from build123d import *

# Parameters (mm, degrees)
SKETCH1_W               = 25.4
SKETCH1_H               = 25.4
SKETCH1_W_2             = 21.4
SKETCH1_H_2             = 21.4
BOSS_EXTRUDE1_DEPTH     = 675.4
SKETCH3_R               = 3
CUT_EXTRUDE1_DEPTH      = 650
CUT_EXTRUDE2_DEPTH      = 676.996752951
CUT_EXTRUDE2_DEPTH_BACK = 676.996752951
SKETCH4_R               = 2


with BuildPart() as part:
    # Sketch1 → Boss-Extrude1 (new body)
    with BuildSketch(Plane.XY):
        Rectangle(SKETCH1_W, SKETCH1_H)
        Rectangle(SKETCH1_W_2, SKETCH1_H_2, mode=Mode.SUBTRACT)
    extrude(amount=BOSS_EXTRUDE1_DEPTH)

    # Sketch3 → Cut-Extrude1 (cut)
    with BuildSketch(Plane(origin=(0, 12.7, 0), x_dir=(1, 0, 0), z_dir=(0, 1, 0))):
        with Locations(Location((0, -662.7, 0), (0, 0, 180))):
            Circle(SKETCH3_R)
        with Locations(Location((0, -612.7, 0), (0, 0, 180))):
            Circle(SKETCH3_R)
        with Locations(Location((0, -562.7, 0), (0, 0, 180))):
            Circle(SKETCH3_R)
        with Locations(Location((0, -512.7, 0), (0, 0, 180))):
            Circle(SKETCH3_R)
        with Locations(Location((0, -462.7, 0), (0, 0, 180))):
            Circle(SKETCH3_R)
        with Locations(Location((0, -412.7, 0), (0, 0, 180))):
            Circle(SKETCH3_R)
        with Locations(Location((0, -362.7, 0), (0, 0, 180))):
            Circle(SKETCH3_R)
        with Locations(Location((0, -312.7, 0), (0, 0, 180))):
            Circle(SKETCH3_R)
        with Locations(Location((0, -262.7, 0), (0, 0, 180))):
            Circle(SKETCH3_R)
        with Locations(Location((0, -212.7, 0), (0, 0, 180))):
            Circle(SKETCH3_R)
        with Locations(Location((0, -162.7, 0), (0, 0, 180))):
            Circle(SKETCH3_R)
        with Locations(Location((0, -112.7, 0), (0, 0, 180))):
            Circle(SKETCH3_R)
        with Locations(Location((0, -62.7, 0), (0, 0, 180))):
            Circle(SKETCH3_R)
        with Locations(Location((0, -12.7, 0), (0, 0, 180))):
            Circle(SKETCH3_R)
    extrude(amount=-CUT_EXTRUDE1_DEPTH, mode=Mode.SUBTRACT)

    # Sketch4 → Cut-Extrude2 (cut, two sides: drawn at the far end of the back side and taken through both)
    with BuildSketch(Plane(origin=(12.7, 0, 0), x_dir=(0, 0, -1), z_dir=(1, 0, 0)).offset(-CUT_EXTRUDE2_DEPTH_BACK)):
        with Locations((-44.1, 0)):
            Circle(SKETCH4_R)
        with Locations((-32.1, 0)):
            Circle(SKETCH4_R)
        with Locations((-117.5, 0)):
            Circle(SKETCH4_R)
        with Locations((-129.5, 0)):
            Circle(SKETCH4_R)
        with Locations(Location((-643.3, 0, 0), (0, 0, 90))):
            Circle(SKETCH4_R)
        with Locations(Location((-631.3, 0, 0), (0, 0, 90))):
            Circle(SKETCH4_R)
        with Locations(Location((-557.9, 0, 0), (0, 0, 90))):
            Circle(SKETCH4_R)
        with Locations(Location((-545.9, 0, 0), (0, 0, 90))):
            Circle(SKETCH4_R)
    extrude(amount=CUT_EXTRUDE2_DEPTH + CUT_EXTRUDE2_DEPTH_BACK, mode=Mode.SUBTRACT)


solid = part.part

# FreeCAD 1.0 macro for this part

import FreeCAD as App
import Part
import Sketcher
from FreeCAD import Vector


def add_polygon(sketch, points):
    """Adds a closed chain of lines whose ends are joined by coincident constraints."""
    first, n = sketch.GeometryCount, len(points)
    for a, b in zip(points, points[1:] + points[:1]):
        sketch.addGeometry(Part.LineSegment(App.Vector(*a, 0), App.Vector(*b, 0)), False)
    for i in range(n):
        sketch.addConstraint(Sketcher.Constraint("Coincident", first + i, 2, first + (i + 1) % n, 1))

doc = App.newDocument("Part")
body = doc.addObject("PartDesign::Body", "Body")

sketch1 = body.newObject("Sketcher::SketchObject", "Sketch")
sketch1.AttachmentSupport = (doc.getObject("XY_Plane"), [""])
sketch1.MapMode = "FlatFace"
add_polygon(sketch1, [(-12.7, 12.7), (-12.7, -12.7), (12.7, -12.7), (12.7, 12.7)])
add_polygon(sketch1, [(10.7, -10.7), (-10.7, -10.7), (-10.7, 10.7), (10.7, 10.7)])
sketch1.addConstraint([
    Sketcher.Constraint("Vertical", 0),
    Sketcher.Constraint("Horizontal", 1),
    Sketcher.Constraint("Vertical", 2),
    Sketcher.Constraint("Horizontal", 3),
    Sketcher.Constraint("Horizontal", 4),
    Sketcher.Constraint("Vertical", 5),
    Sketcher.Constraint("Horizontal", 6),
    Sketcher.Constraint("Vertical", 7),
    Sketcher.Constraint("Symmetric", 0, 2, 2, 2, -1, 1),
    Sketcher.Constraint("Symmetric", 4, 2, 6, 2, -1, 1),
    Sketcher.Constraint("Equal", 3, 0),
    Sketcher.Constraint("Equal", 6, 5),
    Sketcher.Constraint("DistanceX", 1, 1, 1, 2, 25.4),
    Sketcher.Constraint("DistanceX", 4, 2, 4, 1, 21.4),
])
pad1 = body.newObject("PartDesign::Pad", "Pad")
pad1.Profile = sketch1
pad1.Length = 675.4

sketch2 = body.newObject("Sketcher::SketchObject", "Sketch001")
sketch2.AttachmentSupport = (doc.getObject("XZ_Plane"), [""])
sketch2.MapMode = "FlatFace"
sketch2.AttachmentOffset = App.Placement(Vector(0, 0, -12.7), App.Rotation())
sketch2.addGeometry([
    Part.Circle(Vector(0, 662.7, 0), Vector(0, 0, 1), 3),
    Part.Circle(Vector(0, 612.7, 0), Vector(0, 0, 1), 3),
    Part.Circle(Vector(0, 562.7, 0), Vector(0, 0, 1), 3),
    Part.Circle(Vector(0, 512.7, 0), Vector(0, 0, 1), 3),
    Part.Circle(Vector(0, 462.7, 0), Vector(0, 0, 1), 3),
    Part.Circle(Vector(0, 412.7, 0), Vector(0, 0, 1), 3),
    Part.Circle(Vector(0, 362.7, 0), Vector(0, 0, 1), 3),
    Part.Circle(Vector(0, 312.7, 0), Vector(0, 0, 1), 3),
    Part.Circle(Vector(0, 262.7, 0), Vector(0, 0, 1), 3),
    Part.Circle(Vector(0, 212.7, 0), Vector(0, 0, 1), 3),
    Part.Circle(Vector(0, 162.7, 0), Vector(0, 0, 1), 3),
    Part.Circle(Vector(0, 112.7, 0), Vector(0, 0, 1), 3),
    Part.Circle(Vector(0, 62.7, 0), Vector(0, 0, 1), 3),
    Part.Circle(Vector(0, 12.7, 0), Vector(0, 0, 1), 3),
], False)
sketch2.addConstraint([
    Sketcher.Constraint("Equal", 0, 1),
    Sketcher.Constraint("Equal", 1, 2),
    Sketcher.Constraint("Equal", 2, 3),
    Sketcher.Constraint("Equal", 3, 4),
    Sketcher.Constraint("Equal", 4, 5),
    Sketcher.Constraint("Equal", 5, 6),
    Sketcher.Constraint("Equal", 6, 7),
    Sketcher.Constraint("Equal", 7, 8),
    Sketcher.Constraint("Equal", 8, 9),
    Sketcher.Constraint("Equal", 9, 10),
    Sketcher.Constraint("Equal", 10, 11),
    Sketcher.Constraint("Equal", 11, 12),
    Sketcher.Constraint("Equal", 12, 13),
    Sketcher.Constraint("PointOnObject", 0, 3, -2),
    Sketcher.Constraint("PointOnObject", 1, 3, -2),
    Sketcher.Constraint("PointOnObject", 2, 3, -2),
    Sketcher.Constraint("PointOnObject", 3, 3, -2),
    Sketcher.Constraint("PointOnObject", 4, 3, -2),
    Sketcher.Constraint("PointOnObject", 5, 3, -2),
    Sketcher.Constraint("PointOnObject", 6, 3, -2),
    Sketcher.Constraint("PointOnObject", 7, 3, -2),
    Sketcher.Constraint("PointOnObject", 8, 3, -2),
    Sketcher.Constraint("PointOnObject", 9, 3, -2),
    Sketcher.Constraint("PointOnObject", 10, 3, -2),
    Sketcher.Constraint("PointOnObject", 11, 3, -2),
    Sketcher.Constraint("PointOnObject", 12, 3, -2),
    Sketcher.Constraint("PointOnObject", 13, 3, -2),
    Sketcher.Constraint("Diameter", 0, 6.0),
    Sketcher.Constraint("DistanceY", 1, 3, 0, 3, 50.0),
    Sketcher.Constraint("DistanceY", 2, 3, 1, 3, 50.0),
    Sketcher.Constraint("DistanceY", 3, 3, 2, 3, 50.0),
    Sketcher.Constraint("DistanceY", 4, 3, 3, 3, 50.0),
    Sketcher.Constraint("DistanceY", 5, 3, 4, 3, 50.0),
    Sketcher.Constraint("DistanceY", 6, 3, 5, 3, 50.0),
    Sketcher.Constraint("DistanceY", 7, 3, 6, 3, 50.0),
    Sketcher.Constraint("DistanceY", 8, 3, 7, 3, 50.0),
    Sketcher.Constraint("DistanceY", 9, 3, 8, 3, 50.0),
    Sketcher.Constraint("DistanceY", 10, 3, 9, 3, 50.0),
    Sketcher.Constraint("DistanceY", 11, 3, 10, 3, 50.0),
    Sketcher.Constraint("DistanceY", 12, 3, 11, 3, 50.0),
    Sketcher.Constraint("DistanceY", 13, 3, 12, 3, 50.0),
    Sketcher.Constraint("DistanceY", -1, 1, 0, 3, 662.7),
])
pocket1 = body.newObject("PartDesign::Pocket", "Pocket")
pocket1.Profile = sketch2
pocket1.Length = 650
pocket1.Reversed = True

sketch3 = body.newObject("Sketcher::SketchObject", "Sketch002")
sketch3.AttachmentSupport = (doc.getObject("YZ_Plane"), [""])
sketch3.MapMode = "FlatFace"
sketch3.AttachmentOffset = App.Placement(Vector(0, 0, 12.7), App.Rotation())
sketch3.addGeometry([
    Part.Circle(Vector(0, 44.1, 0), Vector(0, 0, 1), 2),
    Part.Circle(Vector(0, 32.1, 0), Vector(0, 0, 1), 2),
    Part.Circle(Vector(0, 117.5, 0), Vector(0, 0, 1), 2),
    Part.Circle(Vector(0, 129.5, 0), Vector(0, 0, 1), 2),
    Part.Circle(Vector(0, 643.3, 0), Vector(0, 0, 1), 2),
    Part.Circle(Vector(0, 631.3, 0), Vector(0, 0, 1), 2),
    Part.Circle(Vector(0, 557.9, 0), Vector(0, 0, 1), 2),
    Part.Circle(Vector(0, 545.9, 0), Vector(0, 0, 1), 2),
], False)
sketch3.addConstraint([
    Sketcher.Constraint("Equal", 0, 1),
    Sketcher.Constraint("Equal", 1, 2),
    Sketcher.Constraint("Equal", 2, 3),
    Sketcher.Constraint("Equal", 3, 4),
    Sketcher.Constraint("Equal", 4, 5),
    Sketcher.Constraint("Equal", 5, 6),
    Sketcher.Constraint("Equal", 6, 7),
    Sketcher.Constraint("PointOnObject", 0, 3, -2),
    Sketcher.Constraint("PointOnObject", 1, 3, -2),
    Sketcher.Constraint("PointOnObject", 2, 3, -2),
    Sketcher.Constraint("PointOnObject", 3, 3, -2),
    Sketcher.Constraint("PointOnObject", 4, 3, -2),
    Sketcher.Constraint("PointOnObject", 5, 3, -2),
    Sketcher.Constraint("PointOnObject", 6, 3, -2),
    Sketcher.Constraint("PointOnObject", 7, 3, -2),
    Sketcher.Constraint("Diameter", 0, 4.0),
    Sketcher.Constraint("DistanceY", 1, 3, 0, 3, 12.0),
    Sketcher.Constraint("DistanceY", 2, 3, 3, 3, 12.0),
    Sketcher.Constraint("DistanceY", 5, 3, 4, 3, 12.0),
    Sketcher.Constraint("DistanceY", 7, 3, 6, 3, 12.0),
    Sketcher.Constraint("DistanceY", -1, 1, 0, 3, 44.1),
    Sketcher.Constraint("DistanceY", -1, 1, 2, 3, 117.5),
    Sketcher.Constraint("DistanceY", -1, 1, 4, 3, 643.3),
    Sketcher.Constraint("DistanceY", -1, 1, 6, 3, 557.9),
])
pocket2 = body.newObject("PartDesign::Pocket", "Pocket001")
pocket2.Profile = sketch3
pocket2.Type = "ThroughAll"
pocket2.Midplane = True

doc.recompute()
